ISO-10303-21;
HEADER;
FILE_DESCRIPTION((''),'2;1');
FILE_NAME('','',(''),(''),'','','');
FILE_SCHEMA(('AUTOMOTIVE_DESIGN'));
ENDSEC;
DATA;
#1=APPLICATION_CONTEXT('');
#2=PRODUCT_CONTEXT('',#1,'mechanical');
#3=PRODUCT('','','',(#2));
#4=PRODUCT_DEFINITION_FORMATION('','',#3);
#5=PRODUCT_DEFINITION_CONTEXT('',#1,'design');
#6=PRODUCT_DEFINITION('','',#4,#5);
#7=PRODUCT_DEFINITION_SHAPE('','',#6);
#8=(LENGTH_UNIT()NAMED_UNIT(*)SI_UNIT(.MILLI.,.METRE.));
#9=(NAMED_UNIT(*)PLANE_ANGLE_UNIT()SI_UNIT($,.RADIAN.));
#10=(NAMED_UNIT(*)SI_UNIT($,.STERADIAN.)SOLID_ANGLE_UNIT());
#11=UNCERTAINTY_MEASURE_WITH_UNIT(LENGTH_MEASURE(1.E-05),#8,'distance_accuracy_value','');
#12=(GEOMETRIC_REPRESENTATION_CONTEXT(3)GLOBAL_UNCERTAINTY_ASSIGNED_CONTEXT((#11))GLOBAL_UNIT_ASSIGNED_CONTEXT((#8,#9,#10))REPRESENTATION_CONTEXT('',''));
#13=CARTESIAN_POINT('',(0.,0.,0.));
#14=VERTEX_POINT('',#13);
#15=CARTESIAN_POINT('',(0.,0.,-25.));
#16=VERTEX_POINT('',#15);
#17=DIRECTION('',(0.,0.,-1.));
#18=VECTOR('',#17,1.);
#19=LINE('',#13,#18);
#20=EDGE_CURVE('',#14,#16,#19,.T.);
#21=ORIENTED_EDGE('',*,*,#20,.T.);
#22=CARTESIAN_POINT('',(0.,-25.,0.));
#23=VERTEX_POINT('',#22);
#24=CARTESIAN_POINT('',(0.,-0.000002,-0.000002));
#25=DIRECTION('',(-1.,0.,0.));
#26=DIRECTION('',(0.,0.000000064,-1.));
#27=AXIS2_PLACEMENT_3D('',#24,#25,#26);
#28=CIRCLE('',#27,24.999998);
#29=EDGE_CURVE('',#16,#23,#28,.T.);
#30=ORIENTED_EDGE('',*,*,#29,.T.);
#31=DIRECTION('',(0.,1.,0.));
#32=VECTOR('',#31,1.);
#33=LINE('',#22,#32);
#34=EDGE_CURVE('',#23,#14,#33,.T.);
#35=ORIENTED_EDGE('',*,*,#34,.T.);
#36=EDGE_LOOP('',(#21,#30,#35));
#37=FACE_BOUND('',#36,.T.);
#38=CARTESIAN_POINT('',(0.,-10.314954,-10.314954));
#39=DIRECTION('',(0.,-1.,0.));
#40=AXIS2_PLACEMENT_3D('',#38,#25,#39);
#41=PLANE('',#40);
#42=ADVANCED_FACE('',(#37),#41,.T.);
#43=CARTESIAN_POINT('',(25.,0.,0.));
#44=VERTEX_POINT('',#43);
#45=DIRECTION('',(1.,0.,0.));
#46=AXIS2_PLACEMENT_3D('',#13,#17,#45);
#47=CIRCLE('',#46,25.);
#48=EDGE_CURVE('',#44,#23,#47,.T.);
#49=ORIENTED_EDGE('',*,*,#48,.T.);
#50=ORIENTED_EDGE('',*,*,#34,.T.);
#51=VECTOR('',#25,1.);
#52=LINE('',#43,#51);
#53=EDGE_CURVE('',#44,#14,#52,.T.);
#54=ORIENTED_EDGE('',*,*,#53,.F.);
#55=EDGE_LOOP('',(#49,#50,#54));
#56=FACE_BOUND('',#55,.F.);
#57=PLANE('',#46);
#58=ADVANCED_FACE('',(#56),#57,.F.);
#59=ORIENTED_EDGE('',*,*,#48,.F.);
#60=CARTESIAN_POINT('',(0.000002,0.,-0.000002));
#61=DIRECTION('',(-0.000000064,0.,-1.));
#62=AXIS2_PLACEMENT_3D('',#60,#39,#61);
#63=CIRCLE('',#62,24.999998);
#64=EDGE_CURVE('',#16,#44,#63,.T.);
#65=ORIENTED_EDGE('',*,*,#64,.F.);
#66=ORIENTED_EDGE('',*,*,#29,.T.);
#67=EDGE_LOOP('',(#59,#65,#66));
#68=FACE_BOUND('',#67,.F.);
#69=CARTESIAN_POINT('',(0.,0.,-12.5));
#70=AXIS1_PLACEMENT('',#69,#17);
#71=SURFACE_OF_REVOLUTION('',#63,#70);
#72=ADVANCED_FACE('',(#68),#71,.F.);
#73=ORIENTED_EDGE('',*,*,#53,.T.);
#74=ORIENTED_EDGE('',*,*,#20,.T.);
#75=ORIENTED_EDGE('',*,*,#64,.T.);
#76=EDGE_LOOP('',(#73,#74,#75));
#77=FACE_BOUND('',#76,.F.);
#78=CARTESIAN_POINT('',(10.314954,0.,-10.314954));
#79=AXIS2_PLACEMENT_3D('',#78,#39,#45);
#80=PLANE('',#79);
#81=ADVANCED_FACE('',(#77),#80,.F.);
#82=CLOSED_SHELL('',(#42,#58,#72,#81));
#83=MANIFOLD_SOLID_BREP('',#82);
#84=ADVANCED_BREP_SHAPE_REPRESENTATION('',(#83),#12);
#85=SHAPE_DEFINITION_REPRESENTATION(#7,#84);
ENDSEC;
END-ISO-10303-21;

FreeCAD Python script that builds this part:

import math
import FreeCAD as App
import Part
import Sketcher
from FreeCAD import Vector
Q = App.Units.Quantity

doc = App.newDocument("Part")
body = doc.addObject("PartDesign::Body", "Body")

# Sketch on XZ plane
sketch1 = body.newObject("Sketcher::SketchObject", "Sketch")
sketch1.AttachmentSupport = (doc.getObject("XZ_Plane"), [""])
sketch1.MapMode = "FlatFace"
sketch1.addGeometry([
    Part.LineSegment(Vector(0, 0, 0), Vector(0, -25, 0)),
    Part.ArcOfCircle(Part.Circle(Vector(0, 0, 0), Vector(0, 0, 1), 25), math.radians(-90), math.radians(0)),
    Part.LineSegment(Vector(25, 0, 0), Vector(0, 0, 0)),
], False)
sketch1.addConstraint([
    Sketcher.Constraint("Coincident", 0, 2, 1, 1),
    Sketcher.Constraint("Coincident", 1, 2, 2, 1),
    Sketcher.Constraint("Coincident", 2, 2, 0, 1),
    Sketcher.Constraint("Vertical", 0),
    Sketcher.Constraint("Horizontal", 2),
    Sketcher.Constraint("Coincident", 1, 3, -1, 1),
    Sketcher.Constraint("Coincident", 2, 2, -1, 1),
    Sketcher.Constraint("Radius", 1, Q("24.999998 mm")),
])
revolution = body.newObject("PartDesign::Revolution", "Revolution")
revolution.Profile = sketch1
revolution.ReferenceAxis = (sketch1, ["V_Axis"])
revolution.Angle = 90
revolution.Reversed = True

doc.recompute()
